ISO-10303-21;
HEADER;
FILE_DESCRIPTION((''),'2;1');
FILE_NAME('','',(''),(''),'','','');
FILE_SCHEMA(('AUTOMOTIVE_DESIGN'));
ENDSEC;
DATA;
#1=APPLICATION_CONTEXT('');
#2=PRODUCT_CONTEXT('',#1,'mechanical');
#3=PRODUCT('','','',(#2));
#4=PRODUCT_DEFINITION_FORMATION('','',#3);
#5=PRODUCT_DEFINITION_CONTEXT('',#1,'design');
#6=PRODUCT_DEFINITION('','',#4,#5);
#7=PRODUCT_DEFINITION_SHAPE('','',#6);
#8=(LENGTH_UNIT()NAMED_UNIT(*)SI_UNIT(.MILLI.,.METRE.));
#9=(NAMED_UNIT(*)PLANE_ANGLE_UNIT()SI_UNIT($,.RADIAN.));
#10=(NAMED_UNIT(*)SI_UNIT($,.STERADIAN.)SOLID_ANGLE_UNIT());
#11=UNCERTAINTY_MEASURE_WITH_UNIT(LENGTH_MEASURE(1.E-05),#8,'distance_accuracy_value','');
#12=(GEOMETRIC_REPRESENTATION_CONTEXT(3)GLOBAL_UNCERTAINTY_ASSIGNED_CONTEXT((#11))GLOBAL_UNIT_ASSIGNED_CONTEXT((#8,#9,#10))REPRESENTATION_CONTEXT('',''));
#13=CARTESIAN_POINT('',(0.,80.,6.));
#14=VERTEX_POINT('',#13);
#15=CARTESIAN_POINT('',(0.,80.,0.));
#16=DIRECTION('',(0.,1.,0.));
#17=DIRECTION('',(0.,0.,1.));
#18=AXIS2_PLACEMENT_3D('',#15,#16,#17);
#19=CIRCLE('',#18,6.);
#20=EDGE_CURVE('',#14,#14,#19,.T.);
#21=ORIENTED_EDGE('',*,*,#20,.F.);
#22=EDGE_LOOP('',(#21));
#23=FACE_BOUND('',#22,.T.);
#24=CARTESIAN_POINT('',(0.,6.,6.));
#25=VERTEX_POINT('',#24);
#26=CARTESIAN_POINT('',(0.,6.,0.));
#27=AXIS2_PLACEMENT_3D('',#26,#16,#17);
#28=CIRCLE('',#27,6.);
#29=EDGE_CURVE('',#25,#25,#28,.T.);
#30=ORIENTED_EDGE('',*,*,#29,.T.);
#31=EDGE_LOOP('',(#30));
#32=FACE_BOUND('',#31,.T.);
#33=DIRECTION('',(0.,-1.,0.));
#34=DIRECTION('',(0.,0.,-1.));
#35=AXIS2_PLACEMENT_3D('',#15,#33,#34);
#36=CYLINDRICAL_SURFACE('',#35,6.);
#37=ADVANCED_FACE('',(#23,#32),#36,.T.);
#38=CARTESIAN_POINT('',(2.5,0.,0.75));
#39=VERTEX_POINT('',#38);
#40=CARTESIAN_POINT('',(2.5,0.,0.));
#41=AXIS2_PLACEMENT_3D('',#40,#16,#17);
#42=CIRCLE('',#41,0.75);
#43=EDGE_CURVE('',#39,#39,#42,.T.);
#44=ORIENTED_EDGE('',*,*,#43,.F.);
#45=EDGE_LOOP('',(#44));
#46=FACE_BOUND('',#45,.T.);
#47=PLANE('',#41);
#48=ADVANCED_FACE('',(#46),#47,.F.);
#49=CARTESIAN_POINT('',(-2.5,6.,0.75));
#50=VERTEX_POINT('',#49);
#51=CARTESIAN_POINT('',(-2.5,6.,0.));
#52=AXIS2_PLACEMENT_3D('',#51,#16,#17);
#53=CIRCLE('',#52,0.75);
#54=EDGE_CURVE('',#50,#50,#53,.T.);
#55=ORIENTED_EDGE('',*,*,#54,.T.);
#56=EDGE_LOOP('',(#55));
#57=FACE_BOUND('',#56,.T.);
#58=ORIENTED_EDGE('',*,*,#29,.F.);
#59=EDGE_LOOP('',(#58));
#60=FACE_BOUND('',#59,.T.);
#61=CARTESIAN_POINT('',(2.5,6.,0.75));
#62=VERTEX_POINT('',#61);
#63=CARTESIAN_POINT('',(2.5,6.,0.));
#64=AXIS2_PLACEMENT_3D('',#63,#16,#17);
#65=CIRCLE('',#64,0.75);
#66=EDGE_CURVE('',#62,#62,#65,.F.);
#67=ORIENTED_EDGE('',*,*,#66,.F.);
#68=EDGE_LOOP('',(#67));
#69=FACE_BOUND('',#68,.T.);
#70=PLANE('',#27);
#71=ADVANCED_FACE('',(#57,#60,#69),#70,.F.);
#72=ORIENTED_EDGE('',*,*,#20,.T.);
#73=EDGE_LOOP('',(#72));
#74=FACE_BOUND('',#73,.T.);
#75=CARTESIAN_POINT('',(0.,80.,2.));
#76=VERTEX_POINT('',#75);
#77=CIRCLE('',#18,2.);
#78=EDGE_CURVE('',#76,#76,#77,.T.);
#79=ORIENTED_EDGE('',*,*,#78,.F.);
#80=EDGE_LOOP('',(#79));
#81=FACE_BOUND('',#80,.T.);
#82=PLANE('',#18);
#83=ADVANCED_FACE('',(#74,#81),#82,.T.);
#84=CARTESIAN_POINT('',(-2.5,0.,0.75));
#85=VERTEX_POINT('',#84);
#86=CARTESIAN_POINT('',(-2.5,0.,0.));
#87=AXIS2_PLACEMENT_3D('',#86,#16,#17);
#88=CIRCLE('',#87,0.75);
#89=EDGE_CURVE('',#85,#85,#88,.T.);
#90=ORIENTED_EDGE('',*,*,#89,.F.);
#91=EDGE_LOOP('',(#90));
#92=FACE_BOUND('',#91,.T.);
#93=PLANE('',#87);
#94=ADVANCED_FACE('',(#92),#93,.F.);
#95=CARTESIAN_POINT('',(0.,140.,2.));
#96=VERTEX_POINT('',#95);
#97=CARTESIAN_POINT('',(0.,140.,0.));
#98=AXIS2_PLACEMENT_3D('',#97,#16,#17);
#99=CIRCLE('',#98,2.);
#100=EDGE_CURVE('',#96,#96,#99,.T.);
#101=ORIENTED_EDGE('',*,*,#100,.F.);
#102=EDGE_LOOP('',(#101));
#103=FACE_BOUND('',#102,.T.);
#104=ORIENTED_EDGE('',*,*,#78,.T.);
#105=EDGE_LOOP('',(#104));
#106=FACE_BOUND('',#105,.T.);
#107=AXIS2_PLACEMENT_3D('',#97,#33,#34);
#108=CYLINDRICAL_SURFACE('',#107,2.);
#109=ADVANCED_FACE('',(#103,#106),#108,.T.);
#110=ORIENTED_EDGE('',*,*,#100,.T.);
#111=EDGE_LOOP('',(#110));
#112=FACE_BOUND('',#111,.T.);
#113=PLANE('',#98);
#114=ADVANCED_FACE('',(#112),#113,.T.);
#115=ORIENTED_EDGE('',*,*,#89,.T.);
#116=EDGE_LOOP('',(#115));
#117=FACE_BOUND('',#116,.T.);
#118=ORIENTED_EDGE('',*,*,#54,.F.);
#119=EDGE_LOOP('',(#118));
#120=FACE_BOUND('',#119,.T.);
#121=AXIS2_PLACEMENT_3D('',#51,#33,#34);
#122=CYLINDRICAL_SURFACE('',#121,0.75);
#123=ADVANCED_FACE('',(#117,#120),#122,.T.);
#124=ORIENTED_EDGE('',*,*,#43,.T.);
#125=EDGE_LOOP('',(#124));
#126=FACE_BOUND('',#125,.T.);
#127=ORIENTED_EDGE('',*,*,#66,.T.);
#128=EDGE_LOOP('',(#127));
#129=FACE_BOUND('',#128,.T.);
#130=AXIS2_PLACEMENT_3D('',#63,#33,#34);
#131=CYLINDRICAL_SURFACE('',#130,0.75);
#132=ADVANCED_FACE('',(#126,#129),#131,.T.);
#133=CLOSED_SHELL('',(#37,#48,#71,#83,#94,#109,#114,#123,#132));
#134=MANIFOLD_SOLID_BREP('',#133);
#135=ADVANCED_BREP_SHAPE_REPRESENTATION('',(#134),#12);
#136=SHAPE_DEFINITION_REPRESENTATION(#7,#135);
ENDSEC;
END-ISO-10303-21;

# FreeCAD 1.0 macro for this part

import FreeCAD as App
import Part
import Sketcher
Q = App.Units.Quantity

doc = App.newDocument("Part")
params = doc.addObject("Spreadsheet::Sheet", "Params")
for row, (alias, value) in enumerate([
    ("sketch1_diameter", "1.5 mm"),
    ("pad1_length", "6 mm"),
    ("sketch2_diameter", "1.5 mm"),
    ("pad2_length", "6 mm"),
    ("sketch3_diameter", "12 mm"),
    ("pad3_length", "74 mm"),
    ("sketch4_diameter", "4 mm"),
    ("pad4_length", "60 mm"),
], start=1):
    params.set(f"A{row}", alias)
    params.set(f"B{row}", "=" + value)
    params.setAlias(f"B{row}", alias)

body = doc.addObject("PartDesign::Body", "Body")

# Sketch on XZ plane
sketch1 = body.newObject("Sketcher::SketchObject", "Sketch")
sketch1.AttachmentSupport = (doc.getObject("XZ_Plane"), [""])
sketch1.MapMode = "FlatFace"
sketch1.addGeometry(Part.Circle(App.Vector(-2.5, 0, 0), App.Vector(0, 0, 1), 0.75), False)
sketch1.addConstraint([
    Sketcher.Constraint("PointOnObject", 0, 3, -1),
    Sketcher.Constraint("Diameter", 0, Q("1.5 mm")),
    Sketcher.Constraint("DistanceX", 0, 3, -1, 1, Q("2.5 mm")),
])
sketch1.setExpression("Constraints[1]", "Params.sketch1_diameter")
pad1 = body.newObject("PartDesign::Pad", "Pad")
pad1.Profile = sketch1
pad1.setExpression("Length", "Params.pad1_length")
pad1.Reversed = True
body2 = doc.addObject("PartDesign::Body", "Body001")

# Sketch on XZ plane
sketch2 = body2.newObject("Sketcher::SketchObject", "Sketch001")
sketch2.AttachmentSupport = (doc.getObject("XZ_Plane001"), [""])
sketch2.MapMode = "FlatFace"
sketch2.addGeometry(Part.Circle(App.Vector(2.5, 0, 0), App.Vector(0, 0, 1), 0.75), False)
sketch2.addConstraint([
    Sketcher.Constraint("PointOnObject", 0, 3, -1),
    Sketcher.Constraint("Diameter", 0, Q("1.5 mm")),
    Sketcher.Constraint("DistanceX", -1, 1, 0, 3, Q("2.5 mm")),
])
sketch2.setExpression("Constraints[1]", "Params.sketch2_diameter")
pad2 = body2.newObject("PartDesign::Pad", "Pad001")
pad2.Profile = sketch2
pad2.setExpression("Length", "Params.pad2_length")
pad2.Reversed = True
body.AllowCompound = True
doc.recompute()

boolean = body.newObject("PartDesign::Boolean", "Boolean")
boolean.Type = "Fuse"
boolean.addObjects([body2])

# Sketch on XZ plane
sketch3 = body.newObject("Sketcher::SketchObject", "Sketch002")
sketch3.AttachmentSupport = (doc.getObject("XZ_Plane"), [""])
sketch3.MapMode = "FlatFace"
sketch3.AttachmentOffset = App.Placement(App.Vector(0, 0, -6), App.Rotation())
sketch3.addGeometry(Part.Circle(App.Vector(0, 0, 0), App.Vector(0, 0, 1), 6), False)
sketch3.addConstraint([
    Sketcher.Constraint("Coincident", 0, 3, -1, 1),
    Sketcher.Constraint("Diameter", 0, Q("12 mm")),
])
sketch3.setExpression("Constraints[1]", "Params.sketch3_diameter")
pad3 = body.newObject("PartDesign::Pad", "Pad002")
pad3.Profile = sketch3
pad3.setExpression("Length", "Params.pad3_length")
pad3.Reversed = True

# Sketch on XZ plane
sketch4 = body.newObject("Sketcher::SketchObject", "Sketch003")
sketch4.AttachmentSupport = (doc.getObject("XZ_Plane"), [""])
sketch4.MapMode = "FlatFace"
sketch4.AttachmentOffset = App.Placement(App.Vector(0, 0, -80), App.Rotation())
sketch4.addGeometry(Part.Circle(App.Vector(0, 0, 0), App.Vector(0, 0, 1), 2), False)
sketch4.addConstraint([
    Sketcher.Constraint("Coincident", 0, 3, -1, 1),
    Sketcher.Constraint("Diameter", 0, Q("4 mm")),
])
sketch4.setExpression("Constraints[1]", "Params.sketch4_diameter")
pad4 = body.newObject("PartDesign::Pad", "Pad003")
pad4.Profile = sketch4
pad4.setExpression("Length", "Params.pad4_length")
pad4.Reversed = True

doc.recompute()
